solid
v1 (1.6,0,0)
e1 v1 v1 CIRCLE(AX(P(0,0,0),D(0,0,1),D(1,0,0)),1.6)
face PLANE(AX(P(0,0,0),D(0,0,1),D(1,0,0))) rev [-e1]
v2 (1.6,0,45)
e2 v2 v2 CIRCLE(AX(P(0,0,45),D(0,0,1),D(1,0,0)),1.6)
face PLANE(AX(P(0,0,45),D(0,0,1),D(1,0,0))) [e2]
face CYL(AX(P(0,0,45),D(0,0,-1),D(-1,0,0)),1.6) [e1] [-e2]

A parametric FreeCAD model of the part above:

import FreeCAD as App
import Part
import Sketcher

V = App.Vector
Q = App.Units.Quantity

doc = App.newDocument("Part")
body = doc.addObject("PartDesign::Body", "Body")

# Sketch on XY plane
sketch1 = body.newObject("Sketcher::SketchObject", "Sketch")
sketch1.AttachmentSupport = (doc.getObject("XY_Plane"), [""])
sketch1.MapMode = "FlatFace"
sketch1.addGeometry(Part.Circle(V(0, 0, 0), V(0, 0, 1), 1.6), False)
sketch1.addConstraint([
    Sketcher.Constraint("Coincident", 0, 3, -1, 1),
    Sketcher.Constraint("Diameter", 0, Q("3.2 mm")),
])
pad1 = body.newObject("PartDesign::Pad", "Pad")
pad1.Profile = sketch1
pad1.Length = 45

doc.recompute()
